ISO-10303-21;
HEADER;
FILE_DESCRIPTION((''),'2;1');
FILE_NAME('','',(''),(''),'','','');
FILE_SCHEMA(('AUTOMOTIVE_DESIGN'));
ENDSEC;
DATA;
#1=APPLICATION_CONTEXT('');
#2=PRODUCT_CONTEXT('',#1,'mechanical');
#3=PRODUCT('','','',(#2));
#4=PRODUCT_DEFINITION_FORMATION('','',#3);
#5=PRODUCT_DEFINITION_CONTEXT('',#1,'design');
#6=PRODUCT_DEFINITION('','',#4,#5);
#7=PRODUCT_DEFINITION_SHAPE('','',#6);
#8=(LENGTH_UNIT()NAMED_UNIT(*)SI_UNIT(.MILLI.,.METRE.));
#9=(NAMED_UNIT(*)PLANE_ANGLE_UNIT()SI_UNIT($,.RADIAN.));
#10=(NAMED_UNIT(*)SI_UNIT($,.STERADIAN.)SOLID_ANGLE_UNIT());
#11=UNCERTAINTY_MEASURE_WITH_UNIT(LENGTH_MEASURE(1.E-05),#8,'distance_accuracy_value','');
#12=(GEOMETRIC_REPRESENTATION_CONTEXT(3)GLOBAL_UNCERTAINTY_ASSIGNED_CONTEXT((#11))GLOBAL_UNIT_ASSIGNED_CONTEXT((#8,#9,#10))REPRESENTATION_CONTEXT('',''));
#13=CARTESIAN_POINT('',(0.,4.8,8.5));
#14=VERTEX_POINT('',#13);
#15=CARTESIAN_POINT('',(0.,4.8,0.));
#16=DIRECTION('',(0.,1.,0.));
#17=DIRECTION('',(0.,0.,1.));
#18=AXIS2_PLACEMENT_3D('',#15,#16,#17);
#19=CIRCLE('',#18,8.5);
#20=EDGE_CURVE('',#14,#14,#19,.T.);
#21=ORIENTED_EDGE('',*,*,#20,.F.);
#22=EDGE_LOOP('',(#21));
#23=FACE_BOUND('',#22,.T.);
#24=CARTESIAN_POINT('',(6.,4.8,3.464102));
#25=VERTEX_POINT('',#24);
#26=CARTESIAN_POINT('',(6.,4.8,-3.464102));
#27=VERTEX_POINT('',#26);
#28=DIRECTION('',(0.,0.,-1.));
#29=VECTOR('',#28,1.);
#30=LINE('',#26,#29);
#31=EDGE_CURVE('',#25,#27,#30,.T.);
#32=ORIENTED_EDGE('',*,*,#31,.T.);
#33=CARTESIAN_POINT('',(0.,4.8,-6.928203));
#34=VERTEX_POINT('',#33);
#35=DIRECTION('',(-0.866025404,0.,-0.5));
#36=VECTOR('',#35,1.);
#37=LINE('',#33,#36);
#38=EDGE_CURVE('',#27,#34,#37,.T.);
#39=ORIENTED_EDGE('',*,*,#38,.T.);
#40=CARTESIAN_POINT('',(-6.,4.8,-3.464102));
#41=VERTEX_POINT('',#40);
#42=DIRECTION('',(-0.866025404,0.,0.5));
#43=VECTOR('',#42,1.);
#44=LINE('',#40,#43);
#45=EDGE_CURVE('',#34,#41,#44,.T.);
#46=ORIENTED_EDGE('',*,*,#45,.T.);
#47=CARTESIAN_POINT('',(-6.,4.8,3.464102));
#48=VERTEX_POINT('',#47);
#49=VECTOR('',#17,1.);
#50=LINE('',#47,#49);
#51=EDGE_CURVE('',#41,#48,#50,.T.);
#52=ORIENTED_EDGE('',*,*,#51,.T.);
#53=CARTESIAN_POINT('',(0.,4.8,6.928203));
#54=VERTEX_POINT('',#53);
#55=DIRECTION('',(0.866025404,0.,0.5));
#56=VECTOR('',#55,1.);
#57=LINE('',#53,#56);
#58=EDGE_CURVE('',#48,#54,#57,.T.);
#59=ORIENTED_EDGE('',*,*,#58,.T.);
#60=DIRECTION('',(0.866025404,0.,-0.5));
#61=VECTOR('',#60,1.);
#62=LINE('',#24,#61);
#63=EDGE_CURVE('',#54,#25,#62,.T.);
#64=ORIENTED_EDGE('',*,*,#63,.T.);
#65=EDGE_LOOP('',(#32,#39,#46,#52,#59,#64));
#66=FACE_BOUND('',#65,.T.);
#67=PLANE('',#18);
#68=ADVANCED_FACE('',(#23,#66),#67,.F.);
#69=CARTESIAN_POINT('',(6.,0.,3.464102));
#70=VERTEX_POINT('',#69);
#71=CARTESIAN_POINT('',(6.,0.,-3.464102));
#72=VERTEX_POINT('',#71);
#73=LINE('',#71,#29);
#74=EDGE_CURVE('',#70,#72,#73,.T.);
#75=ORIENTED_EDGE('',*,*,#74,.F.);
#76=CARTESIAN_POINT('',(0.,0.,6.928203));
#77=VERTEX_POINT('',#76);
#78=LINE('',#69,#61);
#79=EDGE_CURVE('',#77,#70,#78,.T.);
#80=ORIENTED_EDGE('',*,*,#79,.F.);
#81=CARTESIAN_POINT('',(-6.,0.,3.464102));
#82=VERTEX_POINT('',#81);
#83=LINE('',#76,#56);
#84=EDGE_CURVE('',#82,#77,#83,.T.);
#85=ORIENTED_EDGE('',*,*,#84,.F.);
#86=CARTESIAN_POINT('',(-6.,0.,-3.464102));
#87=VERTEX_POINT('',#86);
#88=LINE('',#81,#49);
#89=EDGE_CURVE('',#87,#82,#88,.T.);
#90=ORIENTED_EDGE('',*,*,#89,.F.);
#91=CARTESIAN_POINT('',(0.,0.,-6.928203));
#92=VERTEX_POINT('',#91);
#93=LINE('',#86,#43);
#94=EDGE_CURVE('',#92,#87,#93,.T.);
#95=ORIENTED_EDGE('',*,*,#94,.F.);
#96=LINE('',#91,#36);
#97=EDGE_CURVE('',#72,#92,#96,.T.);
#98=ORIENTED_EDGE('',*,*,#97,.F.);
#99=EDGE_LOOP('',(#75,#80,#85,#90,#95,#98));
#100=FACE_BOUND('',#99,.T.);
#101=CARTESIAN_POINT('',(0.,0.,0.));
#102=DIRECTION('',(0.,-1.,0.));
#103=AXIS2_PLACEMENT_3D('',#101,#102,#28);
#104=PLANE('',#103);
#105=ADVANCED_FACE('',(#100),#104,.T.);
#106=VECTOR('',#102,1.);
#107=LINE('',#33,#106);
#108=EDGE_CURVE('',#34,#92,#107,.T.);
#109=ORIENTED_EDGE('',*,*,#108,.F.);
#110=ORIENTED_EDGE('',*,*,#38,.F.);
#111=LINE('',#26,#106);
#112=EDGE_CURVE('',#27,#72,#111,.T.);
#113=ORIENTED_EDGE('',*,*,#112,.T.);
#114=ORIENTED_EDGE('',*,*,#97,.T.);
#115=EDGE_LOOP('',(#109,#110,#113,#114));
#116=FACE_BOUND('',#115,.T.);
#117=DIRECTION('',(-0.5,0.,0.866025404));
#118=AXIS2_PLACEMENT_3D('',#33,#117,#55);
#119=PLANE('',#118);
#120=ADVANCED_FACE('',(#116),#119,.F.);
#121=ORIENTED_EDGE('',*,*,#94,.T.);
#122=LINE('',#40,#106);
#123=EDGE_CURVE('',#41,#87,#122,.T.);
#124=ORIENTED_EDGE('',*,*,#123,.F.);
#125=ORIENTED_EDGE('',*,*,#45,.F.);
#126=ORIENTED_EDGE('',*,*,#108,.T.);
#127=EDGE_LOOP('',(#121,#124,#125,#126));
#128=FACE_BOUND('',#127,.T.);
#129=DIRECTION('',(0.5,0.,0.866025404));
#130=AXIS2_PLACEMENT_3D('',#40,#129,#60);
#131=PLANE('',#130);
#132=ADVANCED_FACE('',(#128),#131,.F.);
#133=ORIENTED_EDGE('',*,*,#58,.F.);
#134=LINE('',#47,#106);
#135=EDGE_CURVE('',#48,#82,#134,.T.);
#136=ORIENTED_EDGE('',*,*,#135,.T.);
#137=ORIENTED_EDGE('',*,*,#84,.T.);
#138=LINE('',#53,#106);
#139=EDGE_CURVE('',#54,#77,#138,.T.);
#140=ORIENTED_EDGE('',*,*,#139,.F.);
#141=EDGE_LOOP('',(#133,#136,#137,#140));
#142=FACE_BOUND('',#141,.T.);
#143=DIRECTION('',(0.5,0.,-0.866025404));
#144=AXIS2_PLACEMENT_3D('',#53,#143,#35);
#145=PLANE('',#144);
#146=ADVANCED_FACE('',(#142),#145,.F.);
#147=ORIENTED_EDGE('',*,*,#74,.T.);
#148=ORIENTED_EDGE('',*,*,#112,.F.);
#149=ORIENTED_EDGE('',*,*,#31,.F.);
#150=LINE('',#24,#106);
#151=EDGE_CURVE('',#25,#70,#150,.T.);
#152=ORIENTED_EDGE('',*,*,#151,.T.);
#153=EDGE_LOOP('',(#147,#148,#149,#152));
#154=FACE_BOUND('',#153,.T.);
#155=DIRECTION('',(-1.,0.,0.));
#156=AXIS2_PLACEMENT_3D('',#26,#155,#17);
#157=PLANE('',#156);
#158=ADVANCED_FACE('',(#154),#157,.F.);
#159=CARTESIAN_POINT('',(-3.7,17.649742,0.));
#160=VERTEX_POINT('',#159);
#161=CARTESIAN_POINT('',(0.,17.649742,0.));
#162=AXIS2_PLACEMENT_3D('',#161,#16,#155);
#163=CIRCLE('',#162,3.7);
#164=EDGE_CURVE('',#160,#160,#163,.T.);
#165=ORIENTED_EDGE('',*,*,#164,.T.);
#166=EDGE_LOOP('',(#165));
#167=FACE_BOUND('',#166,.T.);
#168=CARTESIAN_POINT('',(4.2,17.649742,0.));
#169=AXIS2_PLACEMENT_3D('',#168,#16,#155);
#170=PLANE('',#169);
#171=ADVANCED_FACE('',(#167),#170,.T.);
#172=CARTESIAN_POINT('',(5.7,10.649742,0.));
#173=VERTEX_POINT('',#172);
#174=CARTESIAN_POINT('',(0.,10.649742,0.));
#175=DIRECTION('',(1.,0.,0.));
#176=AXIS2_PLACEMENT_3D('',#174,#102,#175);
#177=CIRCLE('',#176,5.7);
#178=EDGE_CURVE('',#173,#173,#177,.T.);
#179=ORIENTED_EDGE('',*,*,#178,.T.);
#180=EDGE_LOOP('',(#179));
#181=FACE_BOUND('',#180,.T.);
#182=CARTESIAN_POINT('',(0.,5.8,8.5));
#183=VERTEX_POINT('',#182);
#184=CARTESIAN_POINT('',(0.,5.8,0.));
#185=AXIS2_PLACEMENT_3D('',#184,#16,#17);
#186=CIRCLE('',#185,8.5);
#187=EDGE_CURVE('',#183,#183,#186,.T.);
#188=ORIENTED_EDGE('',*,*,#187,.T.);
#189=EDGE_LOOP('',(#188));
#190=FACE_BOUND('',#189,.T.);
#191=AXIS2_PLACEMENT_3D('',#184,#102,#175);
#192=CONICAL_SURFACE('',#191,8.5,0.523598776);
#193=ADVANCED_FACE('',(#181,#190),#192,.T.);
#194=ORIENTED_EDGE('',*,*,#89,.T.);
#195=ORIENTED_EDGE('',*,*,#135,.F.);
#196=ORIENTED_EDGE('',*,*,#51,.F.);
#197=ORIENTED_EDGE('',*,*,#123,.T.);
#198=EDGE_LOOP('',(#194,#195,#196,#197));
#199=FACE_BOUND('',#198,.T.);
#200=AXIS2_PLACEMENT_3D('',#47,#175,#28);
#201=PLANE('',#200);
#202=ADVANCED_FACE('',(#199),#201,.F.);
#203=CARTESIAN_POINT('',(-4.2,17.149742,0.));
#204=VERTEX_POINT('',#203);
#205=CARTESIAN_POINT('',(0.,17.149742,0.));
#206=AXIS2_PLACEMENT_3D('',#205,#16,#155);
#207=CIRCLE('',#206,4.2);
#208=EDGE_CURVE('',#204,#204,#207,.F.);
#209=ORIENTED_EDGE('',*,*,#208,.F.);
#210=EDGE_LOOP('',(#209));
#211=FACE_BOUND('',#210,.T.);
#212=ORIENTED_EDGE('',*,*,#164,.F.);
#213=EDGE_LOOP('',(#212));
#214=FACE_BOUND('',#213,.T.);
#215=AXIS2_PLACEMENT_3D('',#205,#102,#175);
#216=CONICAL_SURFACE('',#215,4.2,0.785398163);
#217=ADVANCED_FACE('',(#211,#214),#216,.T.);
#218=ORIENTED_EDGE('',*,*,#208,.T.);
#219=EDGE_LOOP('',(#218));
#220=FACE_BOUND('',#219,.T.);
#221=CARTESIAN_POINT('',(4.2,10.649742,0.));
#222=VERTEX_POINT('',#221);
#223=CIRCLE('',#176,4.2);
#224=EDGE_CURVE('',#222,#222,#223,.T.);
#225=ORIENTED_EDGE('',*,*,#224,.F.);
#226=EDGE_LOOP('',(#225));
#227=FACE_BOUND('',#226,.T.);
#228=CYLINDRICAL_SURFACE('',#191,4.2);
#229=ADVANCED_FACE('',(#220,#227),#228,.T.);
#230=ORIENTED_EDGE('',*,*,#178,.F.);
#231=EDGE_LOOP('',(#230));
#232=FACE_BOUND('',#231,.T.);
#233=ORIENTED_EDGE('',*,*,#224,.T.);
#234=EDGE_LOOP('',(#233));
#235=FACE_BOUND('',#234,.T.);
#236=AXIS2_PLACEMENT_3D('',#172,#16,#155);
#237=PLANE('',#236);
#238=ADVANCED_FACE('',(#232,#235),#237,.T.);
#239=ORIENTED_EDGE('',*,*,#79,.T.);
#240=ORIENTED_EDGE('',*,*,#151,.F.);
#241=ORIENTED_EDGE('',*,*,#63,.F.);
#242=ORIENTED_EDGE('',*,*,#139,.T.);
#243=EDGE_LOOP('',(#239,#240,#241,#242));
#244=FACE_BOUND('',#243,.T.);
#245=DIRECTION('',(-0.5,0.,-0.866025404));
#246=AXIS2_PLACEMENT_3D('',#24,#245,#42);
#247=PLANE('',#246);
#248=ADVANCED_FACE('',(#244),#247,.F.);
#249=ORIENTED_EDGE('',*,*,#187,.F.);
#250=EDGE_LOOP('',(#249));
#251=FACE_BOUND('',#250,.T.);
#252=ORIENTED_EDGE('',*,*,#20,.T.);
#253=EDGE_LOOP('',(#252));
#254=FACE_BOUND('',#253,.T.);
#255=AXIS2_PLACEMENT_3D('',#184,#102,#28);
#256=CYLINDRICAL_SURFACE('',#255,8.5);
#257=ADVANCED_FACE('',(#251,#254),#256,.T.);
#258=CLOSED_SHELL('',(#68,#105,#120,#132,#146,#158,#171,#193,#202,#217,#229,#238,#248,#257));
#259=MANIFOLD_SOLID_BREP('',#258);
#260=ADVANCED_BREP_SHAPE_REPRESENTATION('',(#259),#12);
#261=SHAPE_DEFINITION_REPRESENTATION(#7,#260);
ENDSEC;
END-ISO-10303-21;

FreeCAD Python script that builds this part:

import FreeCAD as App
import Part
import Sketcher
from FreeCAD import Vector
Q = App.Units.Quantity


def edges_at(feature, points):
    """Names of the edges that pass closest to the given points."""
    edges = feature.Shape.Edges
    near = lambda p: min(range(len(edges)), key=lambda i: edges[i].distToShape(Part.Vertex(*p))[0])
    return sorted({f"Edge{near(p) + 1}" for p in points})

doc = App.newDocument("Part")
body = doc.addObject("PartDesign::Body", "Body")

# Sketch on XZ plane
sketch1 = doc.addObject("Sketcher::SketchObject", "Sketch")
body.addObject(sketch1)
sketch1.AttachmentSupport = (doc.XZ_Plane, [""])
sketch1.MapMode = "FlatFace"
sketch1.addGeometry([
    Part.LineSegment(Vector(6, -3, 0), Vector(0, -7, 0)),  # 0
    Part.LineSegment(Vector(0, -7, 0), Vector(-6, -3, 0)),  # 1
    Part.LineSegment(Vector(-6, -3, 0), Vector(-6, 3, 0)),  # 2
    Part.LineSegment(Vector(-6, 3, 0), Vector(0, 7, 0)),  # 3
    Part.LineSegment(Vector(0, 7, 0), Vector(6, 3, 0)),  # 4
    Part.LineSegment(Vector(6, 3, 0), Vector(6, -3, 0)),  # 5
], False)
sketch1.addConstraint([
    Sketcher.Constraint("Coincident", 0, 2, 1, 1),
    Sketcher.Constraint("Coincident", 1, 2, 2, 1),
    Sketcher.Constraint("Coincident", 2, 2, 3, 1),
    Sketcher.Constraint("Coincident", 3, 2, 4, 1),
    Sketcher.Constraint("Coincident", 4, 2, 5, 1),
    Sketcher.Constraint("Coincident", 5, 2, 0, 1),
    Sketcher.Constraint("Vertical", 2),
    Sketcher.Constraint("Vertical", 5),
    Sketcher.Constraint("Symmetric", 0, 2, 3, 2, -1, 1),
    Sketcher.Constraint("Symmetric", 1, 2, 4, 2, -1, 1),
    Sketcher.Constraint("PointOnObject", 0, 2, -2),
    Sketcher.Constraint("Parallel", 0, 3),
    Sketcher.Constraint("Horizontal", 2, 2, 4, 2),
    Sketcher.Constraint("Angle", 0, Q("-150 deg")),
    Sketcher.Constraint("DistanceX", 1, 2, -1, 1, 6.0),
    Sketcher.Constraint("DistanceY", 1, 2, -1, 1, 3.464102),
])
pad1 = doc.addObject("PartDesign::Pad", "Pad")
body.addObject(pad1)
pad1.Profile = sketch1
pad1.Length = 4.8
pad1.Reversed = True

# Sketch on XZ plane
sketch2 = doc.addObject("Sketcher::SketchObject", "Sketch001")
body.addObject(sketch2)
sketch2.AttachmentSupport = (doc.XZ_Plane, [""])
sketch2.MapMode = "FlatFace"
sketch2.AttachmentOffset = App.Placement(Vector(0, 0, -4.8), App.Rotation())
sketch2.addGeometry(Part.Circle(Vector(0, 0, 0), Vector(0, 0, 1), 8), False)
sketch2.addConstraint([
    Sketcher.Constraint("Coincident", 0, 3, -1, 1),
    Sketcher.Constraint("Diameter", 0, 17.0),
])
pad2 = doc.addObject("PartDesign::Pad", "Pad001")
body.addObject(pad2)
pad2.Profile = sketch2
pad2.Length = 1
pad2.Reversed = True

# Sketch on XY plane
sketch3 = doc.addObject("Sketcher::SketchObject", "Sketch002")
body.addObject(sketch3)
sketch3.AttachmentSupport = (doc.XY_Plane, [""])
sketch3.MapMode = "FlatFace"
sketch3.addGeometry([
    Part.LineSegment(Vector(0, 5.8, 0), Vector(8.5, 5.8, 0)),  # 0
    Part.LineSegment(Vector(8.5, 5.8, 0), Vector(5.7, 10.6, 0)),  # 1
    Part.LineSegment(Vector(5.7, 10.6, 0), Vector(4.2, 10.6, 0)),  # 2
    Part.LineSegment(Vector(4.2, 10.6, 0), Vector(4.2, 17.6, 0)),  # 3
    Part.LineSegment(Vector(4.2, 17.6, 0), Vector(0, 17.6, 0)),  # 4
    Part.LineSegment(Vector(0, 17.6, 0), Vector(0, 5.8, 0)),  # 5
], False)
sketch3.addConstraint([
    Sketcher.Constraint("Coincident", 0, 2, 1, 1),
    Sketcher.Constraint("Coincident", 1, 2, 2, 1),
    Sketcher.Constraint("Coincident", 2, 2, 3, 1),
    Sketcher.Constraint("Coincident", 3, 2, 4, 1),
    Sketcher.Constraint("Coincident", 4, 2, 5, 1),
    Sketcher.Constraint("Coincident", 5, 2, 0, 1),
    Sketcher.Constraint("Horizontal", 0),
    Sketcher.Constraint("Horizontal", 2),
    Sketcher.Constraint("Vertical", 3),
    Sketcher.Constraint("Horizontal", 4),
    Sketcher.Constraint("Vertical", 5),
    Sketcher.Constraint("PointOnObject", 4, 2, -2),
    Sketcher.Constraint("DistanceY", 3, 1, 3, 2, 7.0),
    Sketcher.Constraint("Angle", 1, Q("120 deg")),
    Sketcher.Constraint("DistanceX", 0, 1, 0, 2, 8.5),
    Sketcher.Constraint("DistanceX", 2, 2, 2, 1, 1.5),
    Sketcher.Constraint("DistanceX", 4, 2, 4, 1, 4.2),
    Sketcher.Constraint("DistanceY", -1, 1, 0, 2, 5.8),
])
revolution = doc.addObject("PartDesign::Revolution", "Revolution")
body.addObject(revolution)
revolution.Profile = sketch3
revolution.ReferenceAxis = (sketch3, ["V_Axis"])
revolution.Angle = 360
doc.recompute()

chamfer = doc.addObject("PartDesign::Chamfer", "Chamfer")
body.addObject(chamfer)
chamfer.Base = (revolution, edges_at(revolution, [(-4.2, 17.65, 0)]))
chamfer.Size = 0.5

doc.recompute()
